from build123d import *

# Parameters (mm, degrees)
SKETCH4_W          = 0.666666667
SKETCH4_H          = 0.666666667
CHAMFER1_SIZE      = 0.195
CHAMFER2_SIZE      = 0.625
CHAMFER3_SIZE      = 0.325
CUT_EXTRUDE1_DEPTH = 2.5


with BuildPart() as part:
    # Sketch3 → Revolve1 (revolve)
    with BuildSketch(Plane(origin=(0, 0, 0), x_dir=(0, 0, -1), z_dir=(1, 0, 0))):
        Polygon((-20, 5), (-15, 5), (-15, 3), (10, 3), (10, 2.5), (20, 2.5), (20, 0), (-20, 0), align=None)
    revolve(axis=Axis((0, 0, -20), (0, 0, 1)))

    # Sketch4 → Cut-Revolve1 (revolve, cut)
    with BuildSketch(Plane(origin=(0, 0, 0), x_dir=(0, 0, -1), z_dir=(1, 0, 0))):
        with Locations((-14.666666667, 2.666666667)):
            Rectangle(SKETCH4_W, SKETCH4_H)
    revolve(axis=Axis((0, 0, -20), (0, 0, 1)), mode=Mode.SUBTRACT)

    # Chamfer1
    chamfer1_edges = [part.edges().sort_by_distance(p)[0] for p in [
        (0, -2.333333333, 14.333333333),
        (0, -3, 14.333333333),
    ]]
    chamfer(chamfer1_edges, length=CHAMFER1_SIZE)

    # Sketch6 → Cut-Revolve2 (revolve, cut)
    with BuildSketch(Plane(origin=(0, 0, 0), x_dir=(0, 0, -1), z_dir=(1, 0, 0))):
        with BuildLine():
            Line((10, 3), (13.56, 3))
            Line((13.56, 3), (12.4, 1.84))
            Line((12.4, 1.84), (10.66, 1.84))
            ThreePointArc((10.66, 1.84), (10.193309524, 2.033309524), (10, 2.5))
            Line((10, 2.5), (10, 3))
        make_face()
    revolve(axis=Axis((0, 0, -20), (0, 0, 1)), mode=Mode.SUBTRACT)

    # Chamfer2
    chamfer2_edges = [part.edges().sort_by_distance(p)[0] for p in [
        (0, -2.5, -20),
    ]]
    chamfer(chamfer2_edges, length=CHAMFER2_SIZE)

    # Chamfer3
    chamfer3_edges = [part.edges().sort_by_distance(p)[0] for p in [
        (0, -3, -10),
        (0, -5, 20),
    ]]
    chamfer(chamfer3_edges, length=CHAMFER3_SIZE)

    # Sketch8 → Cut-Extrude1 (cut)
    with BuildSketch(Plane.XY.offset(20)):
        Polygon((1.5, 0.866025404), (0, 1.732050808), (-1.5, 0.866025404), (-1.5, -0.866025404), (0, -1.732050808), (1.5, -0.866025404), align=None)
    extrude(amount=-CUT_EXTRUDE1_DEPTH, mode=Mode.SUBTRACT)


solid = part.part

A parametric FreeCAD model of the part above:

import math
import FreeCAD as App
import Part
import Sketcher

V = App.Vector
Q = App.Units.Quantity


def edges_at(feature, points):
    """Names of the edges that pass closest to the given points."""
    edges = feature.Shape.Edges
    near = lambda p: min(range(len(edges)), key=lambda i: edges[i].distToShape(Part.Vertex(*p))[0])
    return sorted({f"Edge{near(p) + 1}" for p in points})

doc = App.newDocument("Part")
body = doc.addObject("PartDesign::Body", "Body")

# Sketch on YZ plane
sketch1 = doc.addObject("Sketcher::SketchObject", "Sketch")
body.addObject(sketch1)
sketch1.AttachmentSupport = (doc.YZ_Plane, [""])
sketch1.MapMode = "FlatFace"
sketch1.addGeometry(Part.LineSegment(V(5, 15, 0), V(5, 20, 0)), False)
sketch1.addGeometry(Part.LineSegment(V(5, 20, 0), V(0, 20, 0)), False)
sketch1.addGeometry(Part.LineSegment(V(0, 20, 0), V(0, -20, 0)), False)
sketch1.addGeometry(Part.LineSegment(V(0, -20, 0), V(2.5, -20, 0)), False)
sketch1.addGeometry(Part.LineSegment(V(2.5, -20, 0), V(2.5, -10, 0)), False)
sketch1.addGeometry(Part.LineSegment(V(2.5, -10, 0), V(3, -10, 0)), False)
sketch1.addGeometry(Part.LineSegment(V(3, -10, 0), V(3, 15, 0)), False)
sketch1.addGeometry(Part.LineSegment(V(3, 15, 0), V(5, 15, 0)), False)
sketch1.addConstraint(Sketcher.Constraint("Coincident", 0, 2, 1, 1))
sketch1.addConstraint(Sketcher.Constraint("Coincident", 1, 2, 2, 1))
sketch1.addConstraint(Sketcher.Constraint("Coincident", 2, 2, 3, 1))
sketch1.addConstraint(Sketcher.Constraint("Coincident", 3, 2, 4, 1))
sketch1.addConstraint(Sketcher.Constraint("Coincident", 4, 2, 5, 1))
sketch1.addConstraint(Sketcher.Constraint("Coincident", 5, 2, 6, 1))
sketch1.addConstraint(Sketcher.Constraint("Coincident", 6, 2, 7, 1))
sketch1.addConstraint(Sketcher.Constraint("Coincident", 7, 2, 0, 1))
sketch1.addConstraint(Sketcher.Constraint("Vertical", 0))
sketch1.addConstraint(Sketcher.Constraint("Horizontal", 1))
sketch1.addConstraint(Sketcher.Constraint("Vertical", 2))
sketch1.addConstraint(Sketcher.Constraint("Horizontal", 3))
sketch1.addConstraint(Sketcher.Constraint("Vertical", 4))
sketch1.addConstraint(Sketcher.Constraint("Horizontal", 5))
sketch1.addConstraint(Sketcher.Constraint("Vertical", 6))
sketch1.addConstraint(Sketcher.Constraint("Horizontal", 7))
sketch1.addConstraint(Sketcher.Constraint("Symmetric", 1, 2, 2, 2, -1, 1))
sketch1.addConstraint(Sketcher.Constraint("Equal", 1, 0))
sketch1.addConstraint(Sketcher.Constraint("DistanceX", 1, 2, 1, 1, Q("5 mm")))
sketch1.addConstraint(Sketcher.Constraint("DistanceX", 7, 1, 7, 2, Q("2 mm")))
sketch1.addConstraint(Sketcher.Constraint("DistanceY", 2, 2, 2, 1, Q("40 mm")))
sketch1.addConstraint(Sketcher.Constraint("DistanceY", 4, 1, 4, 2, Q("10 mm")))
sketch1.addConstraint(Sketcher.Constraint("DistanceX", 3, 1, 3, 2, Q("2.5 mm")))
revolution = doc.addObject("PartDesign::Revolution", "Revolution")
body.addObject(revolution)
revolution.Profile = sketch1
revolution.ReferenceAxis = (sketch1, ["V_Axis"])
revolution.Angle = 360

# Sketch on YZ plane
sketch2 = doc.addObject("Sketcher::SketchObject", "Sketch001")
body.addObject(sketch2)
sketch2.AttachmentSupport = (doc.YZ_Plane, [""])
sketch2.MapMode = "FlatFace"
sketch2.addGeometry(Part.LineSegment(V(3, 15, 0), V(2.3, 15, 0)), False)
sketch2.addGeometry(Part.LineSegment(V(2.3, 15, 0), V(2.3, 14.3, 0)), False)
sketch2.addGeometry(Part.LineSegment(V(2.3, 14.3, 0), V(3, 14.3, 0)), False)
sketch2.addGeometry(Part.LineSegment(V(3, 14.3, 0), V(3, 15, 0)), False)
sketch2.addConstraint(Sketcher.Constraint("Coincident", 0, 2, 1, 1))
sketch2.addConstraint(Sketcher.Constraint("Coincident", 1, 2, 2, 1))
sketch2.addConstraint(Sketcher.Constraint("Coincident", 2, 2, 3, 1))
sketch2.addConstraint(Sketcher.Constraint("Coincident", 3, 2, 0, 1))
sketch2.addConstraint(Sketcher.Constraint("Horizontal", 0))
sketch2.addConstraint(Sketcher.Constraint("Vertical", 1))
sketch2.addConstraint(Sketcher.Constraint("Horizontal", 2))
sketch2.addConstraint(Sketcher.Constraint("Vertical", 3))
sketch2.addConstraint(Sketcher.Constraint("Equal", 2, 1))
sketch2.addConstraint(Sketcher.Constraint("DistanceY", -1, 1, 0, 2, Q("15 mm")))
sketch2.addConstraint(Sketcher.Constraint("DistanceX", -1, 1, 2, 2, Q("3 mm")))
sketch2.addConstraint(Sketcher.Constraint("DistanceX", 0, 2, 0, 1, Q("0.666667 mm")))
groove = doc.addObject("PartDesign::Groove", "Groove")
body.addObject(groove)
groove.Profile = sketch2
groove.ReferenceAxis = (sketch2, ["V_Axis"])
groove.Angle = 360
doc.recompute()

chamfer = doc.addObject("PartDesign::Chamfer", "Chamfer")
body.addObject(chamfer)
chamfer.Base = (groove, edges_at(groove, [(0, -2.333, 14.333), (0, -3, 14.333)]))
chamfer.Size = 0.195

# Sketch on YZ plane
sketch3 = doc.addObject("Sketcher::SketchObject", "Sketch002")
body.addObject(sketch3)
sketch3.AttachmentSupport = (doc.YZ_Plane, [""])
sketch3.MapMode = "FlatFace"
sketch3.addGeometry(Part.LineSegment(V(3, -13.6, 0), V(3, -10, 0)), False)
sketch3.addGeometry(Part.LineSegment(V(3, -10, 0), V(2.5, -10, 0)), False)
sketch3.addGeometry(Part.ArcOfCircle(Part.Circle(V(2.5, -10.7, 0), V(0, 0, 1), 0.7), math.radians(90), math.radians(180)), False)
sketch3.addGeometry(Part.LineSegment(V(1.8, -10.7, 0), V(1.8, -12.4, 0)), False)
sketch3.addGeometry(Part.LineSegment(V(1.8, -12.4, 0), V(3, -13.6, 0)), False)
sketch3.addConstraint(Sketcher.Constraint("Coincident", 0, 2, 1, 1))
sketch3.addConstraint(Sketcher.Constraint("Tangent", 1, 2, 2, 1))
sketch3.addConstraint(Sketcher.Constraint("Tangent", 2, 2, 3, 1))
sketch3.addConstraint(Sketcher.Constraint("Coincident", 3, 2, 4, 1))
sketch3.addConstraint(Sketcher.Constraint("Coincident", 4, 2, 0, 1))
sketch3.addConstraint(Sketcher.Constraint("Vertical", 0))
sketch3.addConstraint(Sketcher.Constraint("Horizontal", 1))
sketch3.addConstraint(Sketcher.Constraint("Vertical", 3))
sketch3.addConstraint(Sketcher.Constraint("Angle", 4, Q("-45 deg")))
sketch3.addConstraint(Sketcher.Constraint("Radius", 2, Q("0.66 mm")))
sketch3.addConstraint(Sketcher.Constraint("DistanceX", 1, 2, 1, 1, Q("0.5 mm")))
sketch3.addConstraint(Sketcher.Constraint("DistanceX", -1, 1, 0, 2, Q("3 mm")))
sketch3.addConstraint(Sketcher.Constraint("DistanceY", 0, 2, -1, 1, Q("10 mm")))
sketch3.addConstraint(Sketcher.Constraint("DistanceY", 0, 1, 0, 2, Q("3.56 mm")))
groove2 = doc.addObject("PartDesign::Groove", "Groove001")
body.addObject(groove2)
groove2.Profile = sketch3
groove2.ReferenceAxis = (sketch3, ["V_Axis"])
groove2.Angle = 360
doc.recompute()

chamfer2 = doc.addObject("PartDesign::Chamfer", "Chamfer001")
body.addObject(chamfer2)
chamfer2.Base = (groove2, edges_at(groove2, [(0, -2.5, -20)]))
chamfer2.Size = 0.625
doc.recompute()

chamfer3 = doc.addObject("PartDesign::Chamfer", "Chamfer002")
body.addObject(chamfer3)
chamfer3.Base = (chamfer2, edges_at(chamfer2, [(0, -3, -10), (0, -5, 20)]))
chamfer3.Size = 0.325

# Sketch on XY plane
sketch4 = doc.addObject("Sketcher::SketchObject", "Sketch003")
body.addObject(sketch4)
sketch4.AttachmentSupport = (doc.XY_Plane, [""])
sketch4.MapMode = "FlatFace"
sketch4.AttachmentOffset = App.Placement(V(0, 0, 20), App.Rotation())
sketch4.addGeometry(Part.LineSegment(V(1.5, 0.9, 0), V(0, 1.7, 0)), False)
sketch4.addGeometry(Part.LineSegment(V(0, 1.7, 0), V(-1.5, 0.9, 0)), False)
sketch4.addGeometry(Part.LineSegment(V(-1.5, 0.9, 0), V(-1.5, -0.9, 0)), False)
sketch4.addGeometry(Part.LineSegment(V(-1.5, -0.9, 0), V(0, -1.7, 0)), False)
sketch4.addGeometry(Part.LineSegment(V(0, -1.7, 0), V(1.5, -0.9, 0)), False)
sketch4.addGeometry(Part.LineSegment(V(1.5, -0.9, 0), V(1.5, 0.9, 0)), False)
sketch4.addConstraint(Sketcher.Constraint("Coincident", 0, 2, 1, 1))
sketch4.addConstraint(Sketcher.Constraint("Coincident", 1, 2, 2, 1))
sketch4.addConstraint(Sketcher.Constraint("Coincident", 2, 2, 3, 1))
sketch4.addConstraint(Sketcher.Constraint("Coincident", 3, 2, 4, 1))
sketch4.addConstraint(Sketcher.Constraint("Coincident", 4, 2, 5, 1))
sketch4.addConstraint(Sketcher.Constraint("Coincident", 5, 2, 0, 1))
sketch4.addConstraint(Sketcher.Constraint("Vertical", 2))
sketch4.addConstraint(Sketcher.Constraint("Vertical", 5))
sketch4.addConstraint(Sketcher.Constraint("Symmetric", 0, 2, 3, 2, -1, 1))
sketch4.addConstraint(Sketcher.Constraint("Symmetric", 1, 2, 4, 2, -1, 1))
sketch4.addConstraint(Sketcher.Constraint("PointOnObject", 0, 2, -2))
sketch4.addConstraint(Sketcher.Constraint("Parallel", 0, 3))
sketch4.addConstraint(Sketcher.Constraint("Horizontal", 2, 2, 4, 2))
sketch4.addConstraint(Sketcher.Constraint("Angle", 0, Q("150 deg")))
sketch4.addConstraint(Sketcher.Constraint("DistanceX", 2, 2, 4, 2, Q("3 mm")))
sketch4.addConstraint(Sketcher.Constraint("DistanceY", 2, 2, 2, 1, Q("1.732051 mm")))
pocket1 = doc.addObject("PartDesign::Pocket", "Pocket")
body.addObject(pocket1)
pocket1.Profile = sketch4
pocket1.Length = 2.5

doc.recompute()
